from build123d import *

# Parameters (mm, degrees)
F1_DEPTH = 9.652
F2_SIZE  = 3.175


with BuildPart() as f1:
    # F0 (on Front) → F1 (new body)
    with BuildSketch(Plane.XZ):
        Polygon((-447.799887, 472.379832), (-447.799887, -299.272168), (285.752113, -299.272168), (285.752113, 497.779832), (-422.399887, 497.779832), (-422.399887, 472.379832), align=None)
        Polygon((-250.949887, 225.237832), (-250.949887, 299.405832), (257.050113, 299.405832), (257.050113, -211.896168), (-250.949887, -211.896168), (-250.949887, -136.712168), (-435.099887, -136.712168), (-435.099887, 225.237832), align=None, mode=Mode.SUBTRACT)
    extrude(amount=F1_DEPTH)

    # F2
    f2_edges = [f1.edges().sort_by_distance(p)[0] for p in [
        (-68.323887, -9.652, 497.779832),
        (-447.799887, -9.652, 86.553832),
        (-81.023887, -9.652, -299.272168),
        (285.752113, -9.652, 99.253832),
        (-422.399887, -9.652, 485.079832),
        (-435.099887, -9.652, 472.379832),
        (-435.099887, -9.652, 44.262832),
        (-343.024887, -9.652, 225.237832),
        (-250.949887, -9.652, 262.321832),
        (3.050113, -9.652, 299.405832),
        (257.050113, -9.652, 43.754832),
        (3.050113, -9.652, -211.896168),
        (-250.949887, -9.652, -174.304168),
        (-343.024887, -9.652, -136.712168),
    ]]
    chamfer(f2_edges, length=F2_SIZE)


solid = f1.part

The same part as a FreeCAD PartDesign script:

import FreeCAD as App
import Part
import Sketcher

V = App.Vector
Q = App.Units.Quantity


def edges_at(feature, points):
    """Names of the edges that pass closest to the given points."""
    edges = feature.Shape.Edges
    near = lambda p: min(range(len(edges)), key=lambda i: edges[i].distToShape(Part.Vertex(*p))[0])
    return sorted({f"Edge{near(p) + 1}" for p in points})


def add_polygon(sketch, points):
    """Adds a closed chain of lines whose ends are joined by coincident constraints."""
    first, n = sketch.GeometryCount, len(points)
    for a, b in zip(points, points[1:] + points[:1]):
        sketch.addGeometry(Part.LineSegment(App.Vector(*a, 0), App.Vector(*b, 0)), False)
    for i in range(n):
        sketch.addConstraint(Sketcher.Constraint("Coincident", first + i, 2, first + (i + 1) % n, 1))

doc = App.newDocument("Part")
body = doc.addObject("PartDesign::Body", "Body")

# Sketch on XZ plane
sketch1 = doc.addObject("Sketcher::SketchObject", "Sketch")
body.addObject(sketch1)
sketch1.AttachmentSupport = (doc.XZ_Plane, [""])
sketch1.MapMode = "FlatFace"
add_polygon(sketch1, [(-448, 472), (-448, -299), (286, -299), (286, 498), (-422, 498), (-422, 472)])  # lines 0-5
add_polygon(sketch1, [(-435, 225), (-251, 225), (-251, 299), (257, 299), (257, -212), (-251, -212), (-251, -137), (-435, -137)])  # lines 6-13
sketch1.addConstraint(Sketcher.Constraint("Vertical", 0))
sketch1.addConstraint(Sketcher.Constraint("Horizontal", 1))
sketch1.addConstraint(Sketcher.Constraint("Vertical", 2))
sketch1.addConstraint(Sketcher.Constraint("Horizontal", 3))
sketch1.addConstraint(Sketcher.Constraint("Vertical", 4))
sketch1.addConstraint(Sketcher.Constraint("Horizontal", 5))
sketch1.addConstraint(Sketcher.Constraint("Horizontal", 6))
sketch1.addConstraint(Sketcher.Constraint("Vertical", 7))
sketch1.addConstraint(Sketcher.Constraint("Horizontal", 8))
sketch1.addConstraint(Sketcher.Constraint("Vertical", 9))
sketch1.addConstraint(Sketcher.Constraint("Horizontal", 10))
sketch1.addConstraint(Sketcher.Constraint("Vertical", 11))
sketch1.addConstraint(Sketcher.Constraint("Horizontal", 12))
sketch1.addConstraint(Sketcher.Constraint("Vertical", 13))
sketch1.addConstraint(Sketcher.Constraint("Vertical", 7, 2, 10, 2))
sketch1.addConstraint(Sketcher.Constraint("Equal", 5, 4))
sketch1.addConstraint(Sketcher.Constraint("DistanceX", 5, 2, 5, 1, Q("1 in")))
sketch1.addConstraint(Sketcher.Constraint("DistanceX", 8, 1, 8, 2, Q("20 in")))
sketch1.addConstraint(Sketcher.Constraint("DistanceX", 1, 1, 1, 2, Q("28.88 in")))
sketch1.addConstraint(Sketcher.Constraint("DistanceX", 6, 1, 6, 2, Q("7.25 in")))
sketch1.addConstraint(Sketcher.Constraint("DistanceY", 0, 2, 0, 1, Q("30.38 in")))
sketch1.addConstraint(Sketcher.Constraint("DistanceY", 7, 1, 7, 2, Q("2.92 in")))
sketch1.addConstraint(Sketcher.Constraint("DistanceY", 9, 2, 9, 1, Q("20.13 in")))
sketch1.addConstraint(Sketcher.Constraint("DistanceY", 11, 1, 11, 2, Q("2.96 in")))
sketch1.addConstraint(Sketcher.Constraint("DistanceY", 0, 2, 11, 2, Q("6.4 in")))
sketch1.addConstraint(Sketcher.Constraint("DistanceX", 0, 2, 12, 2, Q("0.5 in")))
sketch1.addConstraint(Sketcher.Constraint("DistanceY", 0, 2, -1, 1, Q("299.272168 mm")))
sketch1.addConstraint(Sketcher.Constraint("DistanceX", 0, 2, -1, 1, Q("447.799887 mm")))
pad1 = doc.addObject("PartDesign::Pad", "Pad")
body.addObject(pad1)
pad1.Profile = sketch1
pad1.Length = Q("0.38 in")
doc.recompute()

chamfer = doc.addObject("PartDesign::Chamfer", "Chamfer")
body.addObject(chamfer)
chamfer.Base = (pad1, edges_at(pad1, [
    (-68.324, -9.652, 497.78),
    (-447.8, -9.652, 86.554),
    (-81.024, -9.652, -299.272),
    (285.752, -9.652, 99.254),
    (-422.4, -9.652, 485.08),
    (-435.1, -9.652, 472.38),
    (-435.1, -9.652, 44.263),
    (-343.025, -9.652, 225.238),
    (-250.95, -9.652, 262.322),
    (3.05, -9.652, 299.406),
    (257.05, -9.652, 43.755),
    (3.05, -9.652, -211.896),
    (-250.95, -9.652, -174.304),
    (-343.025, -9.652, -136.712),
]))
chamfer.Size = Q("0.125 in")

doc.recompute()
